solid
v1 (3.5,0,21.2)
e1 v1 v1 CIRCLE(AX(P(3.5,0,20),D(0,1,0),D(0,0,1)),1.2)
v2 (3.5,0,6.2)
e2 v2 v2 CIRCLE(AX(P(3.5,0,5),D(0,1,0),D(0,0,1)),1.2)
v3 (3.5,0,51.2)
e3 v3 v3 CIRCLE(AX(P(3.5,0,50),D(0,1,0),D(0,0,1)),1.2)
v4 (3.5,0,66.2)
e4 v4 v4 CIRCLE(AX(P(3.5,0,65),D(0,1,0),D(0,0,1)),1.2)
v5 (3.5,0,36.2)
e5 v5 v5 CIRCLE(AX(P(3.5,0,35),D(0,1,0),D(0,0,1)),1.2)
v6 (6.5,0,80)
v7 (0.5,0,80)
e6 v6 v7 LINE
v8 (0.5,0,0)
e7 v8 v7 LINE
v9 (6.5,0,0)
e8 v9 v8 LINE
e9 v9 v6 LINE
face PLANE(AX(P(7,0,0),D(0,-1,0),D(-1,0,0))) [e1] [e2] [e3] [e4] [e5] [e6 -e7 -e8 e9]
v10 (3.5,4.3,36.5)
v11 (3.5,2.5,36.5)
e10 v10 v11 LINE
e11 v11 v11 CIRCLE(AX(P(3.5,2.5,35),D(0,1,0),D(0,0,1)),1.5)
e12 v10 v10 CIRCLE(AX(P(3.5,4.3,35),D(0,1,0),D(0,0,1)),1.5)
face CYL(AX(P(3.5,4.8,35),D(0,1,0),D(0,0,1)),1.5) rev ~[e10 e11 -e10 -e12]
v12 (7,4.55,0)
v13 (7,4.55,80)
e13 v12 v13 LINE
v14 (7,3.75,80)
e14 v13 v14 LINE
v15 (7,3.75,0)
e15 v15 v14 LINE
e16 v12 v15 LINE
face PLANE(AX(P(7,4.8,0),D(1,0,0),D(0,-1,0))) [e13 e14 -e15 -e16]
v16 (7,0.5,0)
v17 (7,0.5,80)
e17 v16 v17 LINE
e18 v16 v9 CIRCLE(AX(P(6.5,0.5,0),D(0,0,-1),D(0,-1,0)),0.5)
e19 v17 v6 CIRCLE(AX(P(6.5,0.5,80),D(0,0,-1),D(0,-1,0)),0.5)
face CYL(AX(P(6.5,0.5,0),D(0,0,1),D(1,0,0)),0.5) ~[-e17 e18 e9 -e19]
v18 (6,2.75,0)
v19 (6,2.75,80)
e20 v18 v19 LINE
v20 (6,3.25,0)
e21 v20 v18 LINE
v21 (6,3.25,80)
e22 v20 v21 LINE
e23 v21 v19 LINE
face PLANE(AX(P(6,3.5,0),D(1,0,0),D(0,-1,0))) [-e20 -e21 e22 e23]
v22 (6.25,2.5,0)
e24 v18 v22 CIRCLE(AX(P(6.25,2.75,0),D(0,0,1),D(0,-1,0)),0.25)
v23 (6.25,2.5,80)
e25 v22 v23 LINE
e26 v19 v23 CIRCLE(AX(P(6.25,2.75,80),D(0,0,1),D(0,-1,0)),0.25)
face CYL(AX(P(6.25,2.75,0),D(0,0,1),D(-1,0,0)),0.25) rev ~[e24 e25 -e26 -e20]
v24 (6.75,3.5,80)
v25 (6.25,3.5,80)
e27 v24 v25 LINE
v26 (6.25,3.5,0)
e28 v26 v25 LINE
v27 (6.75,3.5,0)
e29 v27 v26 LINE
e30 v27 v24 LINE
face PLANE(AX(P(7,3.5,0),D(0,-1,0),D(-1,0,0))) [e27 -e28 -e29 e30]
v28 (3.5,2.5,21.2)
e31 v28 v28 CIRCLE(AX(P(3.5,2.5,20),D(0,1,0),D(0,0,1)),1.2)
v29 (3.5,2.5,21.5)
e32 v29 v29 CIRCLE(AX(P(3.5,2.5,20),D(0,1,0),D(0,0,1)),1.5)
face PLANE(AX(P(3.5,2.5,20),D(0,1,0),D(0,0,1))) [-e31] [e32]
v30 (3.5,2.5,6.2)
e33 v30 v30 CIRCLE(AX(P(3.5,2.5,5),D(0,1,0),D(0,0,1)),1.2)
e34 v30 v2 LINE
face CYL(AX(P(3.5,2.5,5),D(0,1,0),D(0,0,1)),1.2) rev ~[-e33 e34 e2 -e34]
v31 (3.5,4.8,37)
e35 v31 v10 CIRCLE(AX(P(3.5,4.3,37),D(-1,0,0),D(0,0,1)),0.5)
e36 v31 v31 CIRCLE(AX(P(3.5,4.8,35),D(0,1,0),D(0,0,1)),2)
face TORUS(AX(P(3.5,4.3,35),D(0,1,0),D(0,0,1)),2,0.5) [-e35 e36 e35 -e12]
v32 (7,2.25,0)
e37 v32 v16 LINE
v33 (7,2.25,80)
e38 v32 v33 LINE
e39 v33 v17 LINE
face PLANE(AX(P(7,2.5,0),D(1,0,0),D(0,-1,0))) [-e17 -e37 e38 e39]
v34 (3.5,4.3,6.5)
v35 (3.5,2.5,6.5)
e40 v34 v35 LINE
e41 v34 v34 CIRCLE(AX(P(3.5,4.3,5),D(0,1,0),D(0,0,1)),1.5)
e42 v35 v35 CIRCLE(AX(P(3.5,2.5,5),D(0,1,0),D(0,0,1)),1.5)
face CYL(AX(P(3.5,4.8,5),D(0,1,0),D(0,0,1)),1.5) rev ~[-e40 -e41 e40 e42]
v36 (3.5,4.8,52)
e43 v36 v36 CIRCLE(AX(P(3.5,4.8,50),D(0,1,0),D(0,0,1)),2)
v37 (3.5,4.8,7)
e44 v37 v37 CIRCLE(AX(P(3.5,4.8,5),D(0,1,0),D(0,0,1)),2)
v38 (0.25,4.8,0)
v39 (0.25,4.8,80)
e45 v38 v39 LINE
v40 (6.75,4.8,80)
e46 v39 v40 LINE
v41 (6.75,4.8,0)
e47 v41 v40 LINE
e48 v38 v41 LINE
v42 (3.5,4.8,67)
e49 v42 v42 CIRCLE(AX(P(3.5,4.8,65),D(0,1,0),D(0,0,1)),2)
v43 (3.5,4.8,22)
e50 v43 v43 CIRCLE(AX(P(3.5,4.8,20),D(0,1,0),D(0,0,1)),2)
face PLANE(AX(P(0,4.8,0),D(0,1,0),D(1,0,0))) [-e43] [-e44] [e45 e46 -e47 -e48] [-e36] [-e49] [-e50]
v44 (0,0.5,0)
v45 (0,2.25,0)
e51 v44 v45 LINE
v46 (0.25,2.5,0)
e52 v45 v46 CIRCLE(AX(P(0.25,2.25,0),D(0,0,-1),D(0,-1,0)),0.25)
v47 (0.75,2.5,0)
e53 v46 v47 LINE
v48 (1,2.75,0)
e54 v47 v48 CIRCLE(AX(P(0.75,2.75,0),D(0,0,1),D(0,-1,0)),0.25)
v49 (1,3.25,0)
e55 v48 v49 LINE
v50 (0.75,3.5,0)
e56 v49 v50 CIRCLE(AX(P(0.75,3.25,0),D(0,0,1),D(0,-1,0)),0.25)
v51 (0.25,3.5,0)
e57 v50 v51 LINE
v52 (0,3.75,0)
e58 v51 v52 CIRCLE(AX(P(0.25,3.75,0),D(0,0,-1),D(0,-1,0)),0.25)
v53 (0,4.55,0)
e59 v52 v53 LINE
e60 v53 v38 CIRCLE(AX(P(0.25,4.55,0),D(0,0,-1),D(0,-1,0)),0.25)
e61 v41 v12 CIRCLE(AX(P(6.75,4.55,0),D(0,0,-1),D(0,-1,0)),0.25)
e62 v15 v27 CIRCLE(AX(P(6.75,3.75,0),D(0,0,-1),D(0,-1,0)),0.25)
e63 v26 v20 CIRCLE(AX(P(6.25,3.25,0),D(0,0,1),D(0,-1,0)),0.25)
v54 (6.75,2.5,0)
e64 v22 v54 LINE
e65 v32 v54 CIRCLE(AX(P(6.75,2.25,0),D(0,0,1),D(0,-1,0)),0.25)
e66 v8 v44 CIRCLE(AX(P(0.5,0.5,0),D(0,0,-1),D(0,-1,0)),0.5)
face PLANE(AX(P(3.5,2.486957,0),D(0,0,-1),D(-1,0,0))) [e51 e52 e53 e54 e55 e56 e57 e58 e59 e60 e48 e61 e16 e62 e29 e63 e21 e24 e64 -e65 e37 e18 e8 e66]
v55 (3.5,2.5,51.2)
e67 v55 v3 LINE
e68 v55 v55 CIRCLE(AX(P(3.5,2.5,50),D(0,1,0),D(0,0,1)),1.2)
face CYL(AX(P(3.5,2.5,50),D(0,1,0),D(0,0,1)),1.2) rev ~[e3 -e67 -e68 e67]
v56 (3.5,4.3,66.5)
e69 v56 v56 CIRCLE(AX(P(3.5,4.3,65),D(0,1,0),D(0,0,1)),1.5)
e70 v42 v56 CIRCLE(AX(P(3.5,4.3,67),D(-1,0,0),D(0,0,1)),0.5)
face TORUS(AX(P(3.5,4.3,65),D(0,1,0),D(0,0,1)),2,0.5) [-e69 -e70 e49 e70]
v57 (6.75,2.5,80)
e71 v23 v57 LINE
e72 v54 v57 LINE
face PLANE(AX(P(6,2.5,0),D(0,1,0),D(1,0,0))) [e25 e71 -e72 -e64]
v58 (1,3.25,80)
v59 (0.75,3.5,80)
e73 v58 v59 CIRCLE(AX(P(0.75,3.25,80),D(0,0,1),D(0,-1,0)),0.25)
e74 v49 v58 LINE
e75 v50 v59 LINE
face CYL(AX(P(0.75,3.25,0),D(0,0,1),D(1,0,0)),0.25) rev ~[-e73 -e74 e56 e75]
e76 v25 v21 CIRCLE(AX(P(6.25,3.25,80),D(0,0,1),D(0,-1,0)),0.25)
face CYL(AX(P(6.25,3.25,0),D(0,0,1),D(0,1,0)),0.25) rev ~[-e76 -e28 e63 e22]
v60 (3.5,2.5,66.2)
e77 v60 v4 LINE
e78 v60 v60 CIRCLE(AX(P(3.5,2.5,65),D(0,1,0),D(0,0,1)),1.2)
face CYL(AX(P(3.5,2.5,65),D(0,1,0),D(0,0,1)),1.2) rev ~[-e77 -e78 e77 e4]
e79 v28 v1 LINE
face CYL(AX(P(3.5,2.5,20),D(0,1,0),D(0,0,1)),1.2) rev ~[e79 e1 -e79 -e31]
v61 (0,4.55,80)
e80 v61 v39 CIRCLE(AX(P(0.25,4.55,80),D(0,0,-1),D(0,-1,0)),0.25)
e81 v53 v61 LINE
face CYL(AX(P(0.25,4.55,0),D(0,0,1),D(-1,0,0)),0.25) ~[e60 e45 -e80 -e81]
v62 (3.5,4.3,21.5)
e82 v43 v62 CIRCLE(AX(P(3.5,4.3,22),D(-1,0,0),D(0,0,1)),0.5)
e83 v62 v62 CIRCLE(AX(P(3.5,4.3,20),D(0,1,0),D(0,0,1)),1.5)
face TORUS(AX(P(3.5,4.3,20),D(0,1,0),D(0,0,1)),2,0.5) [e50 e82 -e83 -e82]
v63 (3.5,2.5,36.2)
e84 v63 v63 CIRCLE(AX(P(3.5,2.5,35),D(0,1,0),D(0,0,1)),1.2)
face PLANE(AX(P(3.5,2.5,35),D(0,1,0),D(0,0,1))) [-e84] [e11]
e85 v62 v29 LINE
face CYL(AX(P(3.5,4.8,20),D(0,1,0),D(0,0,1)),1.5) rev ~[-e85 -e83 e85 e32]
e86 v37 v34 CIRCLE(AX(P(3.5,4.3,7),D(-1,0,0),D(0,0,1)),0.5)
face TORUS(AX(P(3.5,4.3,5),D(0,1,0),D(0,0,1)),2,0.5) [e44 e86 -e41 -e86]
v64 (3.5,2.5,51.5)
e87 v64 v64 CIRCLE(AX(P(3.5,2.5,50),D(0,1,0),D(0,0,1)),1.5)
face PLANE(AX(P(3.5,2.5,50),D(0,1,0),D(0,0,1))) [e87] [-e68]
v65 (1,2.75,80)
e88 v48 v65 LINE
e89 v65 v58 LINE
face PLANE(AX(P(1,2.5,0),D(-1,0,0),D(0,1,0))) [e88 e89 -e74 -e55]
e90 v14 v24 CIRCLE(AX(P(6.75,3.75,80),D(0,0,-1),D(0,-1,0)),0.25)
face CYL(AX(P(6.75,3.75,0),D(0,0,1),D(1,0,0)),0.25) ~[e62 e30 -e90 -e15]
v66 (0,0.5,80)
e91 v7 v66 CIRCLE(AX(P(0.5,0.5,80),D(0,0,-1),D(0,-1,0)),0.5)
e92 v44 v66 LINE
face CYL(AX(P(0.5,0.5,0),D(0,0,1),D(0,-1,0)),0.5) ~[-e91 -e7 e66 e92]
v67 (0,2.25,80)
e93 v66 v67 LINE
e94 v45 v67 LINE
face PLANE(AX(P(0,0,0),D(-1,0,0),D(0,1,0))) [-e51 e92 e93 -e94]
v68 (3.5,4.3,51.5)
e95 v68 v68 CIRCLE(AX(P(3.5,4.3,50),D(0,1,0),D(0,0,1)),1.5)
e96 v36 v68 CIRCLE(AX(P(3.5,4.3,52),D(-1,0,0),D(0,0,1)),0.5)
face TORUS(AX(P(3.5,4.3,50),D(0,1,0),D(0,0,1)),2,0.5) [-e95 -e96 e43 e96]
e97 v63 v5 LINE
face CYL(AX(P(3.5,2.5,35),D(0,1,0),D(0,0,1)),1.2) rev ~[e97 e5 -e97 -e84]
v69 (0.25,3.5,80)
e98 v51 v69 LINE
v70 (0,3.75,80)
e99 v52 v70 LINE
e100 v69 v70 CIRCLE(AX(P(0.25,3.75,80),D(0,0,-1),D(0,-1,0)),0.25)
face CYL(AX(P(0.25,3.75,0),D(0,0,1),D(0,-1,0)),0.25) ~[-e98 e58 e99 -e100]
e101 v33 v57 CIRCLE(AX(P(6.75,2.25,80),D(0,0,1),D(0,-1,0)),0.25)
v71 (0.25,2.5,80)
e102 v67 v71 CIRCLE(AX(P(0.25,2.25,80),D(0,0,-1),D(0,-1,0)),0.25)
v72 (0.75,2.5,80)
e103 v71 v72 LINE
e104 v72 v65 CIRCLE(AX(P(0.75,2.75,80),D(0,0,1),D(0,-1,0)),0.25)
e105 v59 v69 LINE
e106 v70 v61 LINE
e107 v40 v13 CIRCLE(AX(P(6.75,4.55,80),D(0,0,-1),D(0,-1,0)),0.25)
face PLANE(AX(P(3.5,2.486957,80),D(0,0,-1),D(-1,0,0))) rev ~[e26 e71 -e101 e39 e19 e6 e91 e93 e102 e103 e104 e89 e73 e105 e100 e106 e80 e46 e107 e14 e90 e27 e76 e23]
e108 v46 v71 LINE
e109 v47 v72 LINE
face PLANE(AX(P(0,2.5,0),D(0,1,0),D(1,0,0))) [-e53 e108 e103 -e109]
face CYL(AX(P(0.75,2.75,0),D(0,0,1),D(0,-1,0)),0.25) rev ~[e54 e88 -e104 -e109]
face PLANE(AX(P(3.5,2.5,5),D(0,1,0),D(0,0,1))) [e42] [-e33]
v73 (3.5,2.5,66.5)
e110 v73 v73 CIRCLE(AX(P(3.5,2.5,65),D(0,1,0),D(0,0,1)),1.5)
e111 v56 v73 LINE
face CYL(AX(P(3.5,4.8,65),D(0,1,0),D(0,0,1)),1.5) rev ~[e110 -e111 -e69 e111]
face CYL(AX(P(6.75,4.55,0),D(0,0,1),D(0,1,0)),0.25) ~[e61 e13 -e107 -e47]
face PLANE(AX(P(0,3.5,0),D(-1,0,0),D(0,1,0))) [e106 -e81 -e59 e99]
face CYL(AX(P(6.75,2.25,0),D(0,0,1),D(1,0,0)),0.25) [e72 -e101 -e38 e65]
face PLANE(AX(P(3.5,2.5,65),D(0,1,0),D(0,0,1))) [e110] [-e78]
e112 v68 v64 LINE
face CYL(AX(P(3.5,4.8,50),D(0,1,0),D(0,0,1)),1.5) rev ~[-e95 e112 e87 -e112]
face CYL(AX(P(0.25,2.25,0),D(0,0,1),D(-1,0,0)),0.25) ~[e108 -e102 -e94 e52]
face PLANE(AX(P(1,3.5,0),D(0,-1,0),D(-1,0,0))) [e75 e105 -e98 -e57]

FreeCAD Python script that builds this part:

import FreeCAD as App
import Part
import Sketcher


def edges_at(feature, points):
    """Names of the edges that pass closest to the given points."""
    edges = feature.Shape.Edges
    near = lambda p: min(range(len(edges)), key=lambda i: edges[i].distToShape(Part.Vertex(*p))[0])
    return sorted({f"Edge{near(p) + 1}" for p in points})

doc = App.newDocument("Part")
body = doc.addObject("PartDesign::Body", "Body")

# Sketch on XY plane
sketch1 = body.newObject("Sketcher::SketchObject", "Sketch")
sketch1.AttachmentSupport = (doc.getObject("XY_Plane"), [""])
sketch1.MapMode = "FlatFace"
sketch1.addGeometry(Part.LineSegment(App.Vector(7, 0, 0), App.Vector(7, 2.5, 0)), False)
sketch1.addGeometry(Part.LineSegment(App.Vector(7, 2.5, 0), App.Vector(6, 2.5, 0)), False)
sketch1.addGeometry(Part.LineSegment(App.Vector(6, 2.5, 0), App.Vector(6, 3.5, 0)), False)
sketch1.addGeometry(Part.LineSegment(App.Vector(6, 3.5, 0), App.Vector(7, 3.5, 0)), False)
sketch1.addGeometry(Part.LineSegment(App.Vector(7, 3.5, 0), App.Vector(7, 4.8, 0)), False)
sketch1.addGeometry(Part.LineSegment(App.Vector(7, 4.8, 0), App.Vector(0, 4.8, 0)), False)
sketch1.addGeometry(Part.LineSegment(App.Vector(0, 4.8, 0), App.Vector(0, 3.5, 0)), False)
sketch1.addGeometry(Part.LineSegment(App.Vector(0, 3.5, 0), App.Vector(1, 3.5, 0)), False)
sketch1.addGeometry(Part.LineSegment(App.Vector(1, 3.5, 0), App.Vector(1, 2.5, 0)), False)
sketch1.addGeometry(Part.LineSegment(App.Vector(1, 2.5, 0), App.Vector(0, 2.5, 0)), False)
sketch1.addGeometry(Part.LineSegment(App.Vector(0, 2.5, 0), App.Vector(0, 0, 0)), False)
sketch1.addGeometry(Part.LineSegment(App.Vector(0, 0, 0), App.Vector(7, 0, 0)), False)
sketch1.addConstraint(Sketcher.Constraint("Coincident", 0, 2, 1, 1))
sketch1.addConstraint(Sketcher.Constraint("Coincident", 1, 2, 2, 1))
sketch1.addConstraint(Sketcher.Constraint("Coincident", 2, 2, 3, 1))
sketch1.addConstraint(Sketcher.Constraint("Coincident", 3, 2, 4, 1))
sketch1.addConstraint(Sketcher.Constraint("Coincident", 4, 2, 5, 1))
sketch1.addConstraint(Sketcher.Constraint("Coincident", 5, 2, 6, 1))
sketch1.addConstraint(Sketcher.Constraint("Coincident", 6, 2, 7, 1))
sketch1.addConstraint(Sketcher.Constraint("Coincident", 7, 2, 8, 1))
sketch1.addConstraint(Sketcher.Constraint("Coincident", 8, 2, 9, 1))
sketch1.addConstraint(Sketcher.Constraint("Coincident", 9, 2, 10, 1))
sketch1.addConstraint(Sketcher.Constraint("Coincident", 10, 2, 11, 1))
sketch1.addConstraint(Sketcher.Constraint("Coincident", 11, 2, 0, 1))
sketch1.addConstraint(Sketcher.Constraint("Vertical", 0))
sketch1.addConstraint(Sketcher.Constraint("Horizontal", 1))
sketch1.addConstraint(Sketcher.Constraint("Vertical", 2))
sketch1.addConstraint(Sketcher.Constraint("Horizontal", 3))
sketch1.addConstraint(Sketcher.Constraint("Vertical", 4))
sketch1.addConstraint(Sketcher.Constraint("Horizontal", 5))
sketch1.addConstraint(Sketcher.Constraint("Vertical", 6))
sketch1.addConstraint(Sketcher.Constraint("Horizontal", 7))
sketch1.addConstraint(Sketcher.Constraint("Vertical", 8))
sketch1.addConstraint(Sketcher.Constraint("Horizontal", 9))
sketch1.addConstraint(Sketcher.Constraint("Vertical", 10))
sketch1.addConstraint(Sketcher.Constraint("Horizontal", 11))
sketch1.addConstraint(Sketcher.Constraint("Coincident", 10, 2, -1, 1))
sketch1.addConstraint(Sketcher.Constraint("PointOnObject", 5, 2, -2))
sketch1.addConstraint(Sketcher.Constraint("Horizontal", 3, 2, 6, 2))
sketch1.addConstraint(Sketcher.Constraint("Horizontal", 1, 2, 8, 2))
sketch1.addConstraint(Sketcher.Constraint("Vertical", 0, 2, 3, 2))
sketch1.addConstraint(Sketcher.Constraint("Equal", 3, 7))
sketch1.addConstraint(Sketcher.Constraint("Equal", 9, 2))
sketch1.addConstraint(Sketcher.Constraint("DistanceX", 1, 2, 1, 1, 1.0))
sketch1.addConstraint(Sketcher.Constraint("DistanceX", 5, 2, 5, 1, 7.0))
sketch1.addConstraint(Sketcher.Constraint("DistanceY", 0, 1, 0, 2, 2.5))
sketch1.addConstraint(Sketcher.Constraint("DistanceY", 4, 1, 4, 2, 1.3))
pad1 = body.newObject("PartDesign::Pad", "Pad")
pad1.Profile = sketch1
pad1.Length = 80
doc.recompute()

fillet = body.newObject("PartDesign::Fillet", "Fillet")
fillet.Base = (pad1, edges_at(pad1, [
    (0, 2.5, 40),
    (1, 2.5, 40),
    (1, 3.5, 40),
    (0, 3.5, 40),
    (0, 4.8, 40),
    (7, 4.8, 40),
    (7, 3.5, 40),
    (6, 3.5, 40),
    (6, 2.5, 40),
    (7, 2.5, 40),
]))
fillet.Radius = 0.25
doc.recompute()

fillet2 = body.newObject("PartDesign::Fillet", "Fillet001")
fillet2.Base = (fillet, edges_at(fillet, [(7, 0, 40), (0, 0, 40)]))
fillet2.Radius = 0.5

# Sketch on XZ plane
sketch2 = body.newObject("Sketcher::SketchObject", "Sketch001")
sketch2.AttachmentSupport = (doc.getObject("XZ_Plane"), [""])
sketch2.MapMode = "FlatFace"
sketch2.AttachmentOffset = App.Placement(App.Vector(0, 0, -4.8), App.Rotation())
sketch2.addGeometry(Part.Circle(App.Vector(3.5, 5, 0), App.Vector(0, 0, 1), 1.5), False)
sketch2.addConstraint(Sketcher.Constraint("Diameter", 0, 3.0))
sketch2.addConstraint(Sketcher.Constraint("DistanceY", -1, 1, 0, 3, 5.0))
sketch2.addConstraint(Sketcher.Constraint("DistanceX", -1, 1, 0, 3, 3.5))
pocket1 = body.newObject("PartDesign::Pocket", "Pocket")
pocket1.Profile = sketch2
pocket1.Length = 2.3
pocket1.Reversed = True

# Sketch on XZ plane
sketch3 = body.newObject("Sketcher::SketchObject", "Sketch002")
sketch3.AttachmentSupport = (doc.getObject("XZ_Plane"), [""])
sketch3.MapMode = "FlatFace"
sketch3.AttachmentOffset = App.Placement(App.Vector(0, 0, -2.5), App.Rotation())
sketch3.addGeometry(Part.Circle(App.Vector(3.5, 5, 0), App.Vector(0, 0, 1), 1.2), False)
sketch3.addConstraint(Sketcher.Constraint("Diameter", 0, 2.4))
sketch3.addConstraint(Sketcher.Constraint("DistanceY", -1, 1, 0, 3, 5.0))
sketch3.addConstraint(Sketcher.Constraint("DistanceX", -1, 1, 0, 3, 3.5))
pocket2 = body.newObject("PartDesign::Pocket", "Pocket001")
pocket2.Profile = sketch3
pocket2.Type = "ThroughAll"
pocket2.Reversed = True
doc.recompute()

fillet3 = body.newObject("PartDesign::Fillet", "Fillet002")
fillet3.Base = (pocket2, edges_at(pocket2, [(3.5, 4.8, 3.5)]))
fillet3.Radius = 0.5
doc.recompute()

linearpattern = body.newObject("PartDesign::LinearPattern", "LinearPattern")
linearpattern.Originals = [pocket1, pocket2]
linearpattern.Direction = (doc.getObject("Z_Axis"), [""])
linearpattern.Mode = "offset"
linearpattern.Offset = 15
linearpattern.Occurrences = 5
body.Tip = linearpattern
doc.recompute()

fillet4 = body.newObject("PartDesign::Fillet", "Fillet003")
fillet4.Base = (linearpattern, edges_at(linearpattern, [
    (3.5, 4.8, 18.5),
    (3.5, 4.8, 33.5),
    (3.5, 4.8, 48.5),
    (3.5, 4.8, 63.5),
]))
fillet4.Radius = 0.5

doc.recompute()
